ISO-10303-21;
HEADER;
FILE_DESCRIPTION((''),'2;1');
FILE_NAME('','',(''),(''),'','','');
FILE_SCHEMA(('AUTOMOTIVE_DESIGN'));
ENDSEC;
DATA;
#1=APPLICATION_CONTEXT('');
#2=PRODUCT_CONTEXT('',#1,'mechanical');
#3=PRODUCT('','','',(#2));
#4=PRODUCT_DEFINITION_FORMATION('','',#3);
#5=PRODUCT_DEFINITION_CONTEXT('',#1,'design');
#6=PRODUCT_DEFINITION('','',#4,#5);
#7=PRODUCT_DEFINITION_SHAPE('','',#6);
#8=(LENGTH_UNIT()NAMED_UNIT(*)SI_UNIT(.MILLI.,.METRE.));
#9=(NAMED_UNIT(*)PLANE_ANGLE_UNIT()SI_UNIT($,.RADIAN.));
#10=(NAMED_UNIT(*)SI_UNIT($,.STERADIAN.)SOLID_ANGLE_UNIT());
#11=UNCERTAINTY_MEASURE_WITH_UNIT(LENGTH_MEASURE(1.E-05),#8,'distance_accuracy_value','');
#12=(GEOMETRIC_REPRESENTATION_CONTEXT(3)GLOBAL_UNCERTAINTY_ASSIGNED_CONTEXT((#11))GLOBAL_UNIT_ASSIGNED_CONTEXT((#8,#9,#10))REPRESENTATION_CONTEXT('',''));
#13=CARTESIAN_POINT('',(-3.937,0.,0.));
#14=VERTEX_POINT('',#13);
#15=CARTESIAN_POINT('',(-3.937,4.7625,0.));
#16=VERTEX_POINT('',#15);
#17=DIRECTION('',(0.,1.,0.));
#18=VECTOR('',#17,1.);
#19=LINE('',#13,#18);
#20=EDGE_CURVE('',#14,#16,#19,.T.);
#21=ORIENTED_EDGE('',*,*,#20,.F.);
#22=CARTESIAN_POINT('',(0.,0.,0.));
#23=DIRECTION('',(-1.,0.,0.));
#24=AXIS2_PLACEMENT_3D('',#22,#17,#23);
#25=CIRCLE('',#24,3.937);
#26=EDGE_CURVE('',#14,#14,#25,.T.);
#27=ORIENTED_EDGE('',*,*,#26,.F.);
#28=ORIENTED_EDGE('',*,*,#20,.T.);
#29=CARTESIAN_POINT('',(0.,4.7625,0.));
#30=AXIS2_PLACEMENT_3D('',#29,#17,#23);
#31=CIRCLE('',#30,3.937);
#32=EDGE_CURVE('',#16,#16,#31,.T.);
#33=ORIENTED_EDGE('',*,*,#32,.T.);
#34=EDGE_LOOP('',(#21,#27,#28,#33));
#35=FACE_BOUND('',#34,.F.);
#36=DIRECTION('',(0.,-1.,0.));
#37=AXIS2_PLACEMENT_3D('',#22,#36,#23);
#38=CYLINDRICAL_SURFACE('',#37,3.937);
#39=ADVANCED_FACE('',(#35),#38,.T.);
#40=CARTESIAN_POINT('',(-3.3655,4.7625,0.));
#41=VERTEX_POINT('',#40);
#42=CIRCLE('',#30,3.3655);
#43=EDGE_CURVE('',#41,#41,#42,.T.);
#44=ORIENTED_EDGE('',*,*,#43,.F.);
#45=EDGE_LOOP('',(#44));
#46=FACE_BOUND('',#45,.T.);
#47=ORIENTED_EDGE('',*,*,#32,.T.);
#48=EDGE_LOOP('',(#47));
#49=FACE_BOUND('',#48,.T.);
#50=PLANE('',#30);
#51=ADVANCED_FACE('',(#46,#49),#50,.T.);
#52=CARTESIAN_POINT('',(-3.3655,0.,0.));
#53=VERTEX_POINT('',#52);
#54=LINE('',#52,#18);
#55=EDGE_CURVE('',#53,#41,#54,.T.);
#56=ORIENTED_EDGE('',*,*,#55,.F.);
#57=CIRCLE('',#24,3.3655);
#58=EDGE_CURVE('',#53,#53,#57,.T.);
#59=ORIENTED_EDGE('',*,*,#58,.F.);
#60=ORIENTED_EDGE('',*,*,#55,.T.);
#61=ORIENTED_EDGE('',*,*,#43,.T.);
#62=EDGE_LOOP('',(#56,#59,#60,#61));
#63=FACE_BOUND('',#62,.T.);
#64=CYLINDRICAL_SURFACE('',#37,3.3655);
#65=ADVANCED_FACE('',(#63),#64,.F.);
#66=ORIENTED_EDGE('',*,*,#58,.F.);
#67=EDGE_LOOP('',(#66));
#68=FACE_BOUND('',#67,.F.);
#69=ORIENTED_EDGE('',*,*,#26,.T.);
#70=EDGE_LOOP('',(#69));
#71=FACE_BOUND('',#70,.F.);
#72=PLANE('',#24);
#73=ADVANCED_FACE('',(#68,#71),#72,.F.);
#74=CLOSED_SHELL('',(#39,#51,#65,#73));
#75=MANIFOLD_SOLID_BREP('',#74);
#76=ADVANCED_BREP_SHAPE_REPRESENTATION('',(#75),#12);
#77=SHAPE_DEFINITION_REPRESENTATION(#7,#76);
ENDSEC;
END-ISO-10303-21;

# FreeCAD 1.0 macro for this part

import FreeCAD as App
import Part
import Sketcher

V = App.Vector
Q = App.Units.Quantity

doc = App.newDocument("Part")
body = doc.addObject("PartDesign::Body", "Body")

sketch1 = body.newObject("Sketcher::SketchObject", "Sketch")
sketch1.AttachmentSupport = (doc.getObject("XZ_Plane"), [""])
sketch1.MapMode = "FlatFace"
sketch1.addGeometry(Part.Circle(V(0, 0, 0), V(0, 0, 1), 3.9), False)
sketch1.addGeometry(Part.Circle(V(0, 0, 0), V(0, 0, 1), 3.4), False)
sketch1.addConstraint(Sketcher.Constraint("Coincident", 0, 3, -1, 1))
sketch1.addConstraint(Sketcher.Constraint("Coincident", 1, 3, -1, 1))
sketch1.addConstraint(Sketcher.Constraint("Diameter", 0, Q("0.31 in")))
sketch1.addConstraint(Sketcher.Constraint("Diameter", 1, Q("0.265 in")))
pad1 = body.newObject("PartDesign::Pad", "Pad")
pad1.Profile = sketch1
pad1.Length = Q("0.1875 in")
pad1.Reversed = True

doc.recompute()
